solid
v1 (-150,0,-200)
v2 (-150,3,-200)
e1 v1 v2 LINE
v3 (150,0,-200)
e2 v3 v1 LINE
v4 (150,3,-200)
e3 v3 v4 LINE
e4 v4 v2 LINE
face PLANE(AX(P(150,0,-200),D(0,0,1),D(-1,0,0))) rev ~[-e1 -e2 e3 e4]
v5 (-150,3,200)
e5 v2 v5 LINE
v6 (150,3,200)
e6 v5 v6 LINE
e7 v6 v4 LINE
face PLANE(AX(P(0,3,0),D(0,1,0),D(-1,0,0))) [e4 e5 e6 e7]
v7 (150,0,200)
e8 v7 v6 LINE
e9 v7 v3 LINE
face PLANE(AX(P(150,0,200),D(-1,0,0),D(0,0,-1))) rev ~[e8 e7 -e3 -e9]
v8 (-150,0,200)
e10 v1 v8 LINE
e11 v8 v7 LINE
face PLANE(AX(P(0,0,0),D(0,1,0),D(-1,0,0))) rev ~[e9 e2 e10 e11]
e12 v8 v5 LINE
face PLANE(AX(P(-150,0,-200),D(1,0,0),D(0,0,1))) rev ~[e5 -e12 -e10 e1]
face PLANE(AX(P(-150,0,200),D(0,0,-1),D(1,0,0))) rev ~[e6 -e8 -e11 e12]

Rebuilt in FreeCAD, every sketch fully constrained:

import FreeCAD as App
import Part
import Sketcher

doc = App.newDocument("Part")
body = doc.addObject("PartDesign::Body", "Body")

# Sketch on XZ plane
sketch1 = doc.addObject("Sketcher::SketchObject", "Sketch")
body.addObject(sketch1)
sketch1.AttachmentSupport = (doc.XZ_Plane, [""])
sketch1.MapMode = "FlatFace"
sketch1.addGeometry([
    Part.LineSegment(App.Vector(-150, -200, 0), App.Vector(-150, 200, 0)),
    Part.LineSegment(App.Vector(-150, 200, 0), App.Vector(150, 200, 0)),
    Part.LineSegment(App.Vector(150, 200, 0), App.Vector(150, -200, 0)),
    Part.LineSegment(App.Vector(150, -200, 0), App.Vector(-150, -200, 0)),
], False)
sketch1.addConstraint([
    Sketcher.Constraint("Coincident", 0, 2, 1, 1),
    Sketcher.Constraint("Coincident", 1, 2, 2, 1),
    Sketcher.Constraint("Coincident", 2, 2, 3, 1),
    Sketcher.Constraint("Coincident", 3, 2, 0, 1),
    Sketcher.Constraint("Vertical", 0),
    Sketcher.Constraint("Horizontal", 1),
    Sketcher.Constraint("Vertical", 2),
    Sketcher.Constraint("Horizontal", 3),
    Sketcher.Constraint("Symmetric", 0, 2, 2, 2, -1, 1),
    Sketcher.Constraint("DistanceX", 1, 1, 1, 2, 300.0),
    Sketcher.Constraint("DistanceY", 0, 1, 0, 2, 400.0),
])
pad1 = doc.addObject("PartDesign::Pad", "Pad")
body.addObject(pad1)
pad1.Profile = sketch1
pad1.Length = 3
pad1.Reversed = True

doc.recompute()
